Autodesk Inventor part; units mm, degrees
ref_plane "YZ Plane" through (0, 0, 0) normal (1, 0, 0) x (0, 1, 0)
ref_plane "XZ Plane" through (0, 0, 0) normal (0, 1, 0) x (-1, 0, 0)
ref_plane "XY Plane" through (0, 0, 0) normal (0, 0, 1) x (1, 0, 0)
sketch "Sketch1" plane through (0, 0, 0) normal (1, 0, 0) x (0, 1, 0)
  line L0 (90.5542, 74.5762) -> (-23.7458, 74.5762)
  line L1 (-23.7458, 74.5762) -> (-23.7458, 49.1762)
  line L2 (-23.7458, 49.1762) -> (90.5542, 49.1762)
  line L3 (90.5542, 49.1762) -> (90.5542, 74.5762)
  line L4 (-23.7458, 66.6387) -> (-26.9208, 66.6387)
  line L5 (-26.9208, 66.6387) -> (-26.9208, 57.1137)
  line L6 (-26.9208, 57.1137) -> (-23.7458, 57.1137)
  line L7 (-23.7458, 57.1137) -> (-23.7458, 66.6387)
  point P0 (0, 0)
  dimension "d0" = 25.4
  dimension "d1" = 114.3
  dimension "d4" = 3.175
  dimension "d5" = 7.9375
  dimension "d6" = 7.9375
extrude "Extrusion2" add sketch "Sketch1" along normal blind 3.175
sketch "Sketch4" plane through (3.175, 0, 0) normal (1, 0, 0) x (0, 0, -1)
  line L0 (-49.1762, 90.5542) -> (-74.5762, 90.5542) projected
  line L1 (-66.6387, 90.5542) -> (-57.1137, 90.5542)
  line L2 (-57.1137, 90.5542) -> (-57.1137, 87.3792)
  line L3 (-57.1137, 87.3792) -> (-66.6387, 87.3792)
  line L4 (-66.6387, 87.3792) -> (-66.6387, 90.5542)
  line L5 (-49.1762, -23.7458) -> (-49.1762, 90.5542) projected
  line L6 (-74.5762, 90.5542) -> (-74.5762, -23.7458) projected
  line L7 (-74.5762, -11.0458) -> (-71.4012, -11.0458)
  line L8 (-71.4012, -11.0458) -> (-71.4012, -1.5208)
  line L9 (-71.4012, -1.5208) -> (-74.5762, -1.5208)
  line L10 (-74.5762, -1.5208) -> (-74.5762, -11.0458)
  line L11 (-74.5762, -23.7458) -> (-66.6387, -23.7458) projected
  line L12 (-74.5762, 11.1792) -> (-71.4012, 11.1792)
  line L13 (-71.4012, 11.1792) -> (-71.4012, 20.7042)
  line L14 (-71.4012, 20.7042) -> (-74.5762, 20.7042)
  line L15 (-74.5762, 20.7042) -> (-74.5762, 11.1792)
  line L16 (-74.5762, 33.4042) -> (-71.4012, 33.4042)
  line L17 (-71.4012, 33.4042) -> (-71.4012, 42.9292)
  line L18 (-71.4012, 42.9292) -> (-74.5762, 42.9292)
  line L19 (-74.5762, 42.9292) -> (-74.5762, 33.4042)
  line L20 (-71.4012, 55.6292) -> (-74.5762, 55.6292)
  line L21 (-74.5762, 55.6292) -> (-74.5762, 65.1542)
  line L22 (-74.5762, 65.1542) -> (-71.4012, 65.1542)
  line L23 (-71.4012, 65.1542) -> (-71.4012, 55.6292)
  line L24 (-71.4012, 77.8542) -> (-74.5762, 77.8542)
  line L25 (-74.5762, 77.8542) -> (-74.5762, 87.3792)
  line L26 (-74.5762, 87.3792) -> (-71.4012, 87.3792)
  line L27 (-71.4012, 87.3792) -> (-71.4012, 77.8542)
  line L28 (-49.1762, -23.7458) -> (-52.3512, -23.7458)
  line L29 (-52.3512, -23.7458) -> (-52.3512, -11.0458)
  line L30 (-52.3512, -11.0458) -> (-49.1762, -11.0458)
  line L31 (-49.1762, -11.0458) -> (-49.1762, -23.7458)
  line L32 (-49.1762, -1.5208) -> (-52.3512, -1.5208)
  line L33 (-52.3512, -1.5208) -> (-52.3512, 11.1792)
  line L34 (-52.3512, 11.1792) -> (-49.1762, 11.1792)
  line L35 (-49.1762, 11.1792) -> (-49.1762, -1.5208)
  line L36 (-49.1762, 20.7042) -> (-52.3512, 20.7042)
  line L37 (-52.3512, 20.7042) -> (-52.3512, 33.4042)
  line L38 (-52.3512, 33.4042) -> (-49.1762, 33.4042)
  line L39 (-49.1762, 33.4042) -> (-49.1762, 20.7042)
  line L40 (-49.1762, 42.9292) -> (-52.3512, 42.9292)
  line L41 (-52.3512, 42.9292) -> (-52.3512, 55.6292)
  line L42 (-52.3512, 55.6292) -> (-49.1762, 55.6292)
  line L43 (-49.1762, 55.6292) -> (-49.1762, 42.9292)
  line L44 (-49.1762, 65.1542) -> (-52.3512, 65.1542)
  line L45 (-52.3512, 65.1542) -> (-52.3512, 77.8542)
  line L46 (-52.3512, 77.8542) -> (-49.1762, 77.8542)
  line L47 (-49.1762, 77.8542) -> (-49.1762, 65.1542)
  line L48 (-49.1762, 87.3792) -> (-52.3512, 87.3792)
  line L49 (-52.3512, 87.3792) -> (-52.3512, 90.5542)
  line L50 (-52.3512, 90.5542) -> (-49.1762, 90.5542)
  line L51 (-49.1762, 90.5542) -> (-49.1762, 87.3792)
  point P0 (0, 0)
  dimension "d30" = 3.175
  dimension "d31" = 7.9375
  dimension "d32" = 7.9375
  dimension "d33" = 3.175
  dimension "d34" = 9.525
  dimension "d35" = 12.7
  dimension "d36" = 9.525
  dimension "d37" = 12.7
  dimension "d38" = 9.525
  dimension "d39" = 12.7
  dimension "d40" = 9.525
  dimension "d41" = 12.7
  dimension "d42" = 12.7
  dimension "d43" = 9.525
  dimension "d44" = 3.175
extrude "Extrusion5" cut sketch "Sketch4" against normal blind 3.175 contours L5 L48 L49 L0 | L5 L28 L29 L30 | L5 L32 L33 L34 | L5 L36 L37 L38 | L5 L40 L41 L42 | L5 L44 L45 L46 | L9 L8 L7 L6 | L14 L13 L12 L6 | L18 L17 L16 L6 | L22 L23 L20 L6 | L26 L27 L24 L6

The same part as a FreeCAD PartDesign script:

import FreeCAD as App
import Part
import Sketcher
from FreeCAD import Vector
Q = App.Units.Quantity


def add_polygon(sketch, points):
    """Adds a closed chain of lines whose ends are joined by coincident constraints."""
    first, n = sketch.GeometryCount, len(points)
    for a, b in zip(points, points[1:] + points[:1]):
        sketch.addGeometry(Part.LineSegment(App.Vector(*a, 0), App.Vector(*b, 0)), False)
    for i in range(n):
        sketch.addConstraint(Sketcher.Constraint("Coincident", first + i, 2, first + (i + 1) % n, 1))

doc = App.newDocument("Part")
params = doc.addObject("Spreadsheet::Sheet", "Params")
for row, (alias, value) in enumerate([
    ("sketch1_height", "1 in"),
    ("sketch1_width", "4.5 in"),
    ("sketch1_width2", "0.125 in"),
    ("sketch1_height2", "0.3125 in"),
    ("pad1_length", "0.125 in"),
    ("sketch2_width", "0.5 in"),
    ("sketch2_width2", "0.125 in"),
    ("pocket1_length", "0.125 in"),
], start=1):
    params.set(f"A{row}", alias)
    params.set(f"B{row}", "=" + value)
    params.setAlias(f"B{row}", alias)

body = doc.addObject("PartDesign::Body", "Body")

# Sketch on YZ plane
sketch1 = body.newObject("Sketcher::SketchObject", "Sketch")
sketch1.AttachmentSupport = (doc.getObject("YZ_Plane"), [""])
sketch1.MapMode = "FlatFace"
add_polygon(sketch1, [(90.6, 49.2), (90.6, 74.6), (-23.7, 74.6), (-23.7, 66.6), (-26.9, 66.6), (-26.9, 57.1), (-23.7, 57.1), (-23.7, 49.2)])  # lines 0-7
sketch1.addConstraint([
    Sketcher.Constraint("Vertical", 0),
    Sketcher.Constraint("Horizontal", 1),
    Sketcher.Constraint("Vertical", 2),
    Sketcher.Constraint("Horizontal", 3),
    Sketcher.Constraint("Vertical", 4),
    Sketcher.Constraint("Horizontal", 5),
    Sketcher.Constraint("Vertical", 6),
    Sketcher.Constraint("Horizontal", 7),
    Sketcher.Constraint("Vertical", 2, 2, 5, 2),
    Sketcher.Constraint("Equal", 2, 6),
    Sketcher.Constraint("DistanceY", 0, 1, 0, 2, Q("1 in")),
    Sketcher.Constraint("DistanceX", 1, 2, 1, 1, Q("4.5 in")),
    Sketcher.Constraint("DistanceX", 3, 2, 3, 1, Q("0.125 in")),
    Sketcher.Constraint("DistanceY", 2, 2, 2, 1, Q("0.3125 in")),
    Sketcher.Constraint("DistanceX", -1, 1, 0, 2, Q("90.5542 mm")),
    Sketcher.Constraint("DistanceY", -1, 1, 0, 2, Q("74.5762 mm")),
])
sketch1.setExpression("Constraints[18]", "Params.sketch1_height")
sketch1.setExpression("Constraints[19]", "Params.sketch1_width")
sketch1.setExpression("Constraints[20]", "Params.sketch1_width2")
sketch1.setExpression("Constraints[21]", "Params.sketch1_height2")
pad1 = body.newObject("PartDesign::Pad", "Pad")
pad1.Profile = sketch1
pad1.setExpression("Length", "Params.pad1_length")

# Sketch on YZ plane
sketch2 = body.newObject("Sketcher::SketchObject", "Sketch001")
sketch2.AttachmentSupport = (doc.getObject("YZ_Plane"), [""])
sketch2.MapMode = "FlatFace"
sketch2.AttachmentOffset = App.Placement(Vector(0, 0, 0.125 * 25.4), App.Rotation())
add_polygon(sketch2, [(87.4, 49.2), (90.6, 49.2), (90.6, 52.4), (87.4, 52.4)])  # lines 0-3
add_polygon(sketch2, [(-23.7, 49.2), (-11, 49.2), (-11, 52.4), (-23.7, 52.4)])  # lines 4-7
add_polygon(sketch2, [(-1.5, 49.2), (11.2, 49.2), (11.2, 52.4), (-1.5, 52.4)])  # lines 8-11
add_polygon(sketch2, [(20.7, 49.2), (33.4, 49.2), (33.4, 52.4), (20.7, 52.4)])  # lines 12-15
add_polygon(sketch2, [(42.9, 49.2), (55.6, 49.2), (55.6, 52.4), (42.9, 52.4)])  # lines 16-19
add_polygon(sketch2, [(65.2, 49.2), (77.9, 49.2), (77.9, 52.4), (65.2, 52.4)])  # lines 20-23
add_polygon(sketch2, [(-1.5, 71.4), (-1.5, 74.6), (-11, 74.6), (-11, 71.4)])  # lines 24-27
add_polygon(sketch2, [(20.7, 71.4), (20.7, 74.6), (11.2, 74.6), (11.2, 71.4)])  # lines 28-31
add_polygon(sketch2, [(42.9, 71.4), (42.9, 74.6), (33.4, 74.6), (33.4, 71.4)])  # lines 32-35
add_polygon(sketch2, [(65.2, 71.4), (65.2, 74.6), (55.6, 74.6), (55.6, 71.4)])  # lines 36-39
add_polygon(sketch2, [(87.4, 71.4), (87.4, 74.6), (77.9, 74.6), (77.9, 71.4)])  # lines 40-43
sketch2.addConstraint([
    Sketcher.Constraint("Horizontal", 0),
    Sketcher.Constraint("Vertical", 1),
    Sketcher.Constraint("Horizontal", 2),
    Sketcher.Constraint("Vertical", 3),
    Sketcher.Constraint("Horizontal", 4),
    Sketcher.Constraint("Vertical", 5),
    Sketcher.Constraint("Horizontal", 6),
    Sketcher.Constraint("Vertical", 7),
    Sketcher.Constraint("Horizontal", 8),
    Sketcher.Constraint("Vertical", 9),
    Sketcher.Constraint("Horizontal", 10),
    Sketcher.Constraint("Vertical", 11),
    Sketcher.Constraint("Horizontal", 12),
    Sketcher.Constraint("Vertical", 13),
    Sketcher.Constraint("Horizontal", 14),
    Sketcher.Constraint("Vertical", 15),
    Sketcher.Constraint("Horizontal", 16),
    Sketcher.Constraint("Vertical", 17),
    Sketcher.Constraint("Horizontal", 18),
    Sketcher.Constraint("Vertical", 19),
    Sketcher.Constraint("Horizontal", 20),
    Sketcher.Constraint("Vertical", 21),
    Sketcher.Constraint("Horizontal", 22),
    Sketcher.Constraint("Vertical", 23),
    Sketcher.Constraint("Vertical", 24),
    Sketcher.Constraint("Horizontal", 25),
    Sketcher.Constraint("Vertical", 26),
    Sketcher.Constraint("Horizontal", 27),
    Sketcher.Constraint("Vertical", 28),
    Sketcher.Constraint("Horizontal", 29),
    Sketcher.Constraint("Vertical", 30),
    Sketcher.Constraint("Horizontal", 31),
    Sketcher.Constraint("Vertical", 32),
    Sketcher.Constraint("Horizontal", 33),
    Sketcher.Constraint("Vertical", 34),
    Sketcher.Constraint("Horizontal", 35),
    Sketcher.Constraint("Vertical", 36),
    Sketcher.Constraint("Horizontal", 37),
    Sketcher.Constraint("Vertical", 38),
    Sketcher.Constraint("Horizontal", 39),
    Sketcher.Constraint("Vertical", 40),
    Sketcher.Constraint("Horizontal", 41),
    Sketcher.Constraint("Vertical", 42),
    Sketcher.Constraint("Horizontal", 43),
    Sketcher.Constraint("Horizontal", 3, 2, 4, 2),
    Sketcher.Constraint("Horizontal", 2, 2, 5, 2),
    Sketcher.Constraint("Horizontal", 7, 2, 8, 2),
    Sketcher.Constraint("Horizontal", 6, 2, 9, 2),
    Sketcher.Constraint("Horizontal", 11, 2, 12, 2),
    Sketcher.Constraint("Horizontal", 10, 2, 13, 2),
    Sketcher.Constraint("Horizontal", 15, 2, 16, 2),
    Sketcher.Constraint("Horizontal", 14, 2, 17, 2),
    Sketcher.Constraint("Horizontal", 19, 2, 20, 2),
    Sketcher.Constraint("Horizontal", 18, 2, 21, 2),
    Sketcher.Constraint("Horizontal", 25, 2, 28, 2),
    Sketcher.Constraint("Horizontal", 27, 2, 30, 2),
    Sketcher.Constraint("Horizontal", 29, 2, 32, 2),
    Sketcher.Constraint("Horizontal", 31, 2, 34, 2),
    Sketcher.Constraint("Horizontal", 33, 2, 36, 2),
    Sketcher.Constraint("Horizontal", 35, 2, 38, 2),
    Sketcher.Constraint("Horizontal", 37, 2, 40, 2),
    Sketcher.Constraint("Horizontal", 39, 2, 42, 2),
    Sketcher.Constraint("Vertical", 11, 2, 24, 2),
    Sketcher.Constraint("Vertical", 5, 2, 25, 2),
    Sketcher.Constraint("Vertical", 15, 2, 28, 2),
    Sketcher.Constraint("Vertical", 9, 2, 29, 2),
    Sketcher.Constraint("Vertical", 19, 2, 32, 2),
    Sketcher.Constraint("Vertical", 13, 2, 33, 2),
    Sketcher.Constraint("Vertical", 23, 2, 36, 2),
    Sketcher.Constraint("Vertical", 17, 2, 37, 2),
    Sketcher.Constraint("Vertical", 3, 2, 40, 2),
    Sketcher.Constraint("Vertical", 21, 2, 41, 2),
    Sketcher.Constraint("Equal", 6, 8),
    Sketcher.Constraint("Equal", 10, 12),
    Sketcher.Constraint("Equal", 14, 16),
    Sketcher.Constraint("Equal", 18, 20),
    Sketcher.Constraint("Equal", 27, 29),
    Sketcher.Constraint("Equal", 31, 33),
    Sketcher.Constraint("Equal", 35, 37),
    Sketcher.Constraint("Equal", 39, 41),
    Sketcher.Constraint("Equal", 2, 1),
    Sketcher.Constraint("Equal", 23, 24),
    Sketcher.Constraint("DistanceX", 4, 1, 4, 2, Q("0.5 in")),
    Sketcher.Constraint("DistanceX", 20, 2, 0, 2, Q("0.5 in")),
    Sketcher.Constraint("DistanceX", 0, 1, 0, 2, Q("0.125 in")),
    Sketcher.Constraint("DistanceY", 11, 2, 24, 2, Q("1 in")),
    Sketcher.Constraint("DistanceX", -1, 1, 0, 2, Q("90.5542 mm")),
    Sketcher.Constraint("DistanceY", -1, 1, 0, 2, Q("49.1762 mm")),
])
sketch2.setExpression("Constraints[126]", "Params.sketch2_width")
sketch2.setExpression("Constraints[128]", "Params.sketch2_width2")
pocket1 = body.newObject("PartDesign::Pocket", "Pocket")
pocket1.Profile = sketch2
pocket1.setExpression("Length", "Params.pocket1_length")

doc.recompute()
